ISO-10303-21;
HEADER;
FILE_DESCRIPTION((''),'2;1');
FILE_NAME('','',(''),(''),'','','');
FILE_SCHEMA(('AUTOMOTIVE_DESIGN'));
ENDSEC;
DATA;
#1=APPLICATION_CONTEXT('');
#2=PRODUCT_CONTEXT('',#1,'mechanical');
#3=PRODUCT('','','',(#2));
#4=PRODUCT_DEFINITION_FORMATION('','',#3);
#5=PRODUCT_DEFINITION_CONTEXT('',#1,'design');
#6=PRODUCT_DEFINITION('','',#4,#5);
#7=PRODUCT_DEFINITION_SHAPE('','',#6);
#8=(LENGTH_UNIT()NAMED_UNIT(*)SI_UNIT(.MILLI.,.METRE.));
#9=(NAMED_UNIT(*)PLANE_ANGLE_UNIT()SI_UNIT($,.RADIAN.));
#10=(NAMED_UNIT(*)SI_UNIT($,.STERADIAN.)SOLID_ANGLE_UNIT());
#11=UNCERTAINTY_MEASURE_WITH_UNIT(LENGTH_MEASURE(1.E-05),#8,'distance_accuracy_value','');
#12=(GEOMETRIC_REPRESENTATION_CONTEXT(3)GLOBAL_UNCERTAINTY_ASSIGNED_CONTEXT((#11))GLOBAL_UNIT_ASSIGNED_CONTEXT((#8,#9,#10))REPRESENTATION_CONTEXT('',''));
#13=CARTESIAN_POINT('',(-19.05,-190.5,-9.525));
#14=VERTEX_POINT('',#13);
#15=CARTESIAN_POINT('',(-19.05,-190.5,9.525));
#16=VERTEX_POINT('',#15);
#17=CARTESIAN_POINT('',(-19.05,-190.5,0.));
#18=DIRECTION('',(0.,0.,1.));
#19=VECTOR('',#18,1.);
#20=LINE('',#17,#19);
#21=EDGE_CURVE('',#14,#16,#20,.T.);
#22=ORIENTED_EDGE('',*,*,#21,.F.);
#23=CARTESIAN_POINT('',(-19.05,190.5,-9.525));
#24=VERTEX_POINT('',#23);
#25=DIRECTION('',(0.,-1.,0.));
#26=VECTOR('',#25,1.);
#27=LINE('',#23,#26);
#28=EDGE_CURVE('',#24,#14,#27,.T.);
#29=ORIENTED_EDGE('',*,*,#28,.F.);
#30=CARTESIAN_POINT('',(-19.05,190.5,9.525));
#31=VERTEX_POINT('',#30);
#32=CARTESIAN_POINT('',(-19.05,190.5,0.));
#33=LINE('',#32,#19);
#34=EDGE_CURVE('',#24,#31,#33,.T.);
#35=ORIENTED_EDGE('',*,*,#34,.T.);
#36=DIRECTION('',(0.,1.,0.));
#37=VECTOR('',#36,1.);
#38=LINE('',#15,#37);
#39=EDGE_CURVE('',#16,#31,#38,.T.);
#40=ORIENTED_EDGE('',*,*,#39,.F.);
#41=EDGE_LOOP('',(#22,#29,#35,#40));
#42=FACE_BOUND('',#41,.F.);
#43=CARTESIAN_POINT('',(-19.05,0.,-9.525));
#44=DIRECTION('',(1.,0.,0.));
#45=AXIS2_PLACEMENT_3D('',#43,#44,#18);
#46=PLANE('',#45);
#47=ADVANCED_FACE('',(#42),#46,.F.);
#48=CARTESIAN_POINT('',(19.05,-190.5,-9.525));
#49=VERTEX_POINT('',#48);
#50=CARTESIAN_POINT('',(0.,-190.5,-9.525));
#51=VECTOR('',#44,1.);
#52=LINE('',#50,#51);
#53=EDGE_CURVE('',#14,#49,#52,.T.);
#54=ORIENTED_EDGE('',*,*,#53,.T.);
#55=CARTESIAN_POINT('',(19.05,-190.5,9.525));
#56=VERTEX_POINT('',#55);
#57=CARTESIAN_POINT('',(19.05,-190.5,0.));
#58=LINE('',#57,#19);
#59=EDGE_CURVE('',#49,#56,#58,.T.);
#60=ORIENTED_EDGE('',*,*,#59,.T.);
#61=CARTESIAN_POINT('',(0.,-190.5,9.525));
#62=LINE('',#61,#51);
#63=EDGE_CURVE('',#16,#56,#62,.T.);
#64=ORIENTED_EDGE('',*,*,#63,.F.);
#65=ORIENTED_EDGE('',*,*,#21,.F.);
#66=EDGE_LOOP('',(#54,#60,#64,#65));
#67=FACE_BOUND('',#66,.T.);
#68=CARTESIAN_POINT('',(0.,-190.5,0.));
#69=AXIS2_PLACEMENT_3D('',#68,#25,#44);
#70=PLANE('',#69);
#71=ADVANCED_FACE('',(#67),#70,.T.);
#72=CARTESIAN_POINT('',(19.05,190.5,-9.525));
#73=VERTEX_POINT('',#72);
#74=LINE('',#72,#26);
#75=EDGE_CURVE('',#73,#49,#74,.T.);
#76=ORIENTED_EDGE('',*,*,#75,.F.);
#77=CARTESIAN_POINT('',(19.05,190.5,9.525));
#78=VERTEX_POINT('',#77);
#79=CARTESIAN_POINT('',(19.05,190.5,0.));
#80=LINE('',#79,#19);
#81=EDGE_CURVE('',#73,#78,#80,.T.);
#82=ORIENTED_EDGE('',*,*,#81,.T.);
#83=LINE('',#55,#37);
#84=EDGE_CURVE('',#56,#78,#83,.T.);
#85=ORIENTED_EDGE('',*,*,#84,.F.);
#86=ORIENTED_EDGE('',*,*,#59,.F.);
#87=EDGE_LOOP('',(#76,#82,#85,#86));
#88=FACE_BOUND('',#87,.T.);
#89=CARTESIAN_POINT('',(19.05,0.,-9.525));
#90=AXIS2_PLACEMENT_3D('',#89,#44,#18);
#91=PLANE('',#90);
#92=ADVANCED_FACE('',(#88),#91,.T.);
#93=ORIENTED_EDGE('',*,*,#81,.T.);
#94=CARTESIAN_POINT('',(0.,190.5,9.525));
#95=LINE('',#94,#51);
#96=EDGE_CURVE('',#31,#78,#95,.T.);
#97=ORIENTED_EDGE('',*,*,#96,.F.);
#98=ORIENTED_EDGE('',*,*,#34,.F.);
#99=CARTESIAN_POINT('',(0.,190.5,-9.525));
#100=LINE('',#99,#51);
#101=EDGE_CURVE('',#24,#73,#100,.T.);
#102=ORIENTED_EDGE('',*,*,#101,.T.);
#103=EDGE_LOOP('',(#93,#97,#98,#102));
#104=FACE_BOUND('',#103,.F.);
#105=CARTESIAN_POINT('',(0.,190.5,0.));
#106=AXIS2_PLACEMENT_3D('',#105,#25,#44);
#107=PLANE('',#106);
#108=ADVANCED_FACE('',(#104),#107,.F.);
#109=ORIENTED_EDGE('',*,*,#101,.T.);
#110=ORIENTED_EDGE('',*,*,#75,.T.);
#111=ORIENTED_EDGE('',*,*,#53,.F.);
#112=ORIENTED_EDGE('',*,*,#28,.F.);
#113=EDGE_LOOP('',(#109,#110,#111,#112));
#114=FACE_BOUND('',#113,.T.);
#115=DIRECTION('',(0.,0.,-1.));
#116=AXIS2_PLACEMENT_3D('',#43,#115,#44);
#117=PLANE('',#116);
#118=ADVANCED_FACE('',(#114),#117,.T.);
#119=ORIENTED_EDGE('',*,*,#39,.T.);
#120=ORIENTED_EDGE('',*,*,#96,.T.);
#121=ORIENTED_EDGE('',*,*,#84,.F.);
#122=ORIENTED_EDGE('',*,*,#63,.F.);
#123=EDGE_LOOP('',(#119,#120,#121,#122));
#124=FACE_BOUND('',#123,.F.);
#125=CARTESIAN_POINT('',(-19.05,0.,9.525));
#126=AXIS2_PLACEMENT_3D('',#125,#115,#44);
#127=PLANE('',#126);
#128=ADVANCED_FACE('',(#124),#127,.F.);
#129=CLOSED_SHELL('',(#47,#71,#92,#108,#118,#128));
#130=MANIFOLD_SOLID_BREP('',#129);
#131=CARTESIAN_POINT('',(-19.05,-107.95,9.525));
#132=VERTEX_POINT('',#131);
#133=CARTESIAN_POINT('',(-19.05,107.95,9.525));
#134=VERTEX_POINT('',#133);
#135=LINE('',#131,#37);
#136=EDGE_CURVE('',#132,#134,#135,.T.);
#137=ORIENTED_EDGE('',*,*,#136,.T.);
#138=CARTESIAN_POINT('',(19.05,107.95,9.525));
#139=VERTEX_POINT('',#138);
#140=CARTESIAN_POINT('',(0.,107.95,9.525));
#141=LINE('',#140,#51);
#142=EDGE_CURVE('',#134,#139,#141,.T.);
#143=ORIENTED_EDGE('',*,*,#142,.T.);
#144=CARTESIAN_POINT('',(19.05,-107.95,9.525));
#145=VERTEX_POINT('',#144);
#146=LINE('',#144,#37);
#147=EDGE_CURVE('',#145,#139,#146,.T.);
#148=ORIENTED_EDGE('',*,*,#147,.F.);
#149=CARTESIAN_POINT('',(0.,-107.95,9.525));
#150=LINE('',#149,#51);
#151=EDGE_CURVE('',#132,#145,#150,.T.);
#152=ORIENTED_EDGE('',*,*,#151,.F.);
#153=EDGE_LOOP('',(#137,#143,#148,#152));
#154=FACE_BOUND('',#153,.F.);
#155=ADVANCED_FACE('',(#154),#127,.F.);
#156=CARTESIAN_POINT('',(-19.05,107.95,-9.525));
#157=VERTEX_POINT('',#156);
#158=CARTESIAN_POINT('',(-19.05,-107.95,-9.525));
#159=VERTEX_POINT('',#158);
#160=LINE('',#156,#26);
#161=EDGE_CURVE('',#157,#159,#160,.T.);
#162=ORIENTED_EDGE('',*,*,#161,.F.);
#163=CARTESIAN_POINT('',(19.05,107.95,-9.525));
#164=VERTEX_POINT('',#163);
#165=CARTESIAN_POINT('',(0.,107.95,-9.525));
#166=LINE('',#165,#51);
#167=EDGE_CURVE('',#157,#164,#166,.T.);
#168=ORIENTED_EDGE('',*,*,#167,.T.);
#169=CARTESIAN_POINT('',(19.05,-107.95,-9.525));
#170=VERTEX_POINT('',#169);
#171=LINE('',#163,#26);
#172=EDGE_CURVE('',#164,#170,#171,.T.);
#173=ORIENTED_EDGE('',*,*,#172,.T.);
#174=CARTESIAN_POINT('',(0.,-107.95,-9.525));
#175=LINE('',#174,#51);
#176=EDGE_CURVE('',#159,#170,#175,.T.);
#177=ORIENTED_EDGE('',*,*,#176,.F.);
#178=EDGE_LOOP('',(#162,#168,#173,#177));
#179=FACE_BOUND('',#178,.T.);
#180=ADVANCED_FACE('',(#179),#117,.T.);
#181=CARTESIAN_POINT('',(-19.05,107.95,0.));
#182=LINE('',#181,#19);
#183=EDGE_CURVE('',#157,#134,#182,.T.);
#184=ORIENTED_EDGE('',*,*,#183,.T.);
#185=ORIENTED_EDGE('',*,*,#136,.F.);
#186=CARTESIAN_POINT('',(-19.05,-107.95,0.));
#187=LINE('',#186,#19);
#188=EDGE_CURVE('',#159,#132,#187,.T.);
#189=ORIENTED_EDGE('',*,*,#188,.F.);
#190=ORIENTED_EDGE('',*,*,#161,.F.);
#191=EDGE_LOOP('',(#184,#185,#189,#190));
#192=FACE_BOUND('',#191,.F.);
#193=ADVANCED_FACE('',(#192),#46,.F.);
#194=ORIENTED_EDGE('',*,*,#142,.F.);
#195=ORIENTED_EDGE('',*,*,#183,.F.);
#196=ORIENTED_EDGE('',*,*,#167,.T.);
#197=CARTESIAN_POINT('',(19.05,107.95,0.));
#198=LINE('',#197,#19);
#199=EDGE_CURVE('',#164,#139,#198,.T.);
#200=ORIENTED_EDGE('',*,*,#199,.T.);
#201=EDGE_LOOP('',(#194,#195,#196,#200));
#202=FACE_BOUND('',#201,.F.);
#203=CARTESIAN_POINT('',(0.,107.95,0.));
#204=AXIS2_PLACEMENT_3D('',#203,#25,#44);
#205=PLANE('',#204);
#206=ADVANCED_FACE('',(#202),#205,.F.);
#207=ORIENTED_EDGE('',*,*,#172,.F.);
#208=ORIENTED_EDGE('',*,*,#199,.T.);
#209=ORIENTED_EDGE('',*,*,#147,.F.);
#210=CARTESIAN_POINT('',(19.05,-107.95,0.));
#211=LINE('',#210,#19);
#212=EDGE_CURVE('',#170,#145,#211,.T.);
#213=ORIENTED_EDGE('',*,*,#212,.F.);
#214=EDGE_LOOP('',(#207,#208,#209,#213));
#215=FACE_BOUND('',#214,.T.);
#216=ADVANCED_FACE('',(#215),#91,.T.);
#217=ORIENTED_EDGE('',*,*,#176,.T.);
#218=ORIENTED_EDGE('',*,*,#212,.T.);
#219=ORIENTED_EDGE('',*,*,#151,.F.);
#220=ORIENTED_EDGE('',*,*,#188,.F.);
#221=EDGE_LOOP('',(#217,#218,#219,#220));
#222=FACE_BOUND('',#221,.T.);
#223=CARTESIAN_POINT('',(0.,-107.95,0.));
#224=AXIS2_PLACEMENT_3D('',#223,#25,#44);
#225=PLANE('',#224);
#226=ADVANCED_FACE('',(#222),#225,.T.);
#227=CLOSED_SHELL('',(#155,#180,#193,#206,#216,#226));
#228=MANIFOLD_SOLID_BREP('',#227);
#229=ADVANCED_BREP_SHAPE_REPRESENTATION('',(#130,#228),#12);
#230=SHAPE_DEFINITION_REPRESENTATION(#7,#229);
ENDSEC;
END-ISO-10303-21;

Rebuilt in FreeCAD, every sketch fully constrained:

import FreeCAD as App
import Part
import Sketcher

V = App.Vector
Q = App.Units.Quantity

doc = App.newDocument("Part")
body = doc.addObject("PartDesign::Body", "Body")

sketch1 = body.newObject("Sketcher::SketchObject", "Sketch")
sketch1.AttachmentSupport = (doc.getObject("XZ_Plane"), [""])
sketch1.MapMode = "FlatFace"
sketch1.addGeometry([
    Part.LineSegment(V(-19, 10, 0), V(-19, -10, 0)),
    Part.LineSegment(V(-19, -10, 0), V(19, -10, 0)),
    Part.LineSegment(V(19, -10, 0), V(19, 10, 0)),
    Part.LineSegment(V(19, 10, 0), V(-19, 10, 0)),
], False)
sketch1.addConstraint([
    Sketcher.Constraint("Coincident", 0, 2, 1, 1),
    Sketcher.Constraint("Coincident", 1, 2, 2, 1),
    Sketcher.Constraint("Coincident", 2, 2, 3, 1),
    Sketcher.Constraint("Coincident", 3, 2, 0, 1),
    Sketcher.Constraint("Vertical", 0),
    Sketcher.Constraint("Horizontal", 1),
    Sketcher.Constraint("Vertical", 2),
    Sketcher.Constraint("Horizontal", 3),
    Sketcher.Constraint("Symmetric", 0, 2, 2, 2, -1, 1),
    Sketcher.Constraint("DistanceX", 1, 1, 1, 2, Q("1.5 in")),
    Sketcher.Constraint("DistanceY", 0, 2, 0, 1, Q("0.75 in")),
])
pad1 = body.newObject("PartDesign::Pad", "Pad")
pad1.Profile = sketch1
pad1.Length = Q("8.5 in")
pad1.Midplane = True
body2 = doc.addObject("PartDesign::Body", "Body001")

sketch2 = body2.newObject("Sketcher::SketchObject", "Sketch001")
sketch2.AttachmentSupport = (doc.getObject("XZ_Plane001"), [""])
sketch2.MapMode = "FlatFace"
sketch2.addGeometry([
    Part.LineSegment(V(-19, 10, 0), V(-19, -10, 0)),
    Part.LineSegment(V(-19, -10, 0), V(19, -10, 0)),
    Part.LineSegment(V(19, -10, 0), V(19, 10, 0)),
    Part.LineSegment(V(19, 10, 0), V(-19, 10, 0)),
], False)
sketch2.addConstraint([
    Sketcher.Constraint("Coincident", 0, 2, 1, 1),
    Sketcher.Constraint("Coincident", 1, 2, 2, 1),
    Sketcher.Constraint("Coincident", 2, 2, 3, 1),
    Sketcher.Constraint("Coincident", 3, 2, 0, 1),
    Sketcher.Constraint("Vertical", 0),
    Sketcher.Constraint("Horizontal", 1),
    Sketcher.Constraint("Vertical", 2),
    Sketcher.Constraint("Horizontal", 3),
    Sketcher.Constraint("Symmetric", 0, 2, 2, 2, -1, 1),
    Sketcher.Constraint("DistanceX", 1, 1, 1, 2, Q("1.5 in")),
    Sketcher.Constraint("DistanceY", 0, 2, 0, 1, Q("0.75 in")),
])
pad2 = body2.newObject("PartDesign::Pad", "Pad001")
pad2.Profile = sketch2
pad2.Length = Q("15 in")
pad2.Midplane = True

doc.recompute()
